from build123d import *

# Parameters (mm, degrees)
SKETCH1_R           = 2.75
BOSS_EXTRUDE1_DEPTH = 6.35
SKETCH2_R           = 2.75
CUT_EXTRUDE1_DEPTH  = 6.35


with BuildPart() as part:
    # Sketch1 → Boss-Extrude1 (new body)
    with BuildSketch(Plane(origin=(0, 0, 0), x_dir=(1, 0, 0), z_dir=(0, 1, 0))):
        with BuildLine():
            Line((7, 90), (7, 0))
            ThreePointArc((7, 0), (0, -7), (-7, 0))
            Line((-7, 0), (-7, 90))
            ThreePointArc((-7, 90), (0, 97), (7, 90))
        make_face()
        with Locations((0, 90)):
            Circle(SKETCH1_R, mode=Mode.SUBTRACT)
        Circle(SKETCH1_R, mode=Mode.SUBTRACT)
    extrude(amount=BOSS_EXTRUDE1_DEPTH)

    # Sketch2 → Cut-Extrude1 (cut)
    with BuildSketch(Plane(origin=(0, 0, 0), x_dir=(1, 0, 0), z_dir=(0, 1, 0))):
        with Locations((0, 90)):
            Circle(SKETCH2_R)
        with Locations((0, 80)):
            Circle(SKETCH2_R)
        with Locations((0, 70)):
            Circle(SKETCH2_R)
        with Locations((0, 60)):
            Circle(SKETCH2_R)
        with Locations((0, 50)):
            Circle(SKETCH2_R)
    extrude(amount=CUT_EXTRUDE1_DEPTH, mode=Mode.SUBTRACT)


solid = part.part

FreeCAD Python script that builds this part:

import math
import FreeCAD as App
import Part
import Sketcher
from FreeCAD import Vector
Q = App.Units.Quantity

doc = App.newDocument("Part")
body = doc.addObject("PartDesign::Body", "Body")

sketch1 = doc.addObject("Sketcher::SketchObject", "Sketch")
body.addObject(sketch1)
sketch1.AttachmentSupport = (doc.XZ_Plane, [""])
sketch1.MapMode = "FlatFace"
sketch1.addGeometry([
    Part.LineSegment(Vector(7, 0, 0), Vector(7, -90, 0)),
    Part.ArcOfCircle(Part.Circle(Vector(0, -90, 0), Vector(0, 0, 1), 7), math.radians(180), math.radians(360)),
    Part.LineSegment(Vector(-7, -90, 0), Vector(-7, 0, 0)),
    Part.ArcOfCircle(Part.Circle(Vector(0, 0, 0), Vector(0, 0, 1), 7), math.radians(0), math.radians(180)),
    Part.Circle(Vector(0, 0, 0), Vector(0, 0, 1), 2.8),
    Part.Circle(Vector(0, -90, 0), Vector(0, 0, 1), 2.8),
], False)
sketch1.addConstraint([
    Sketcher.Constraint("Tangent", 0, 2, 1, 2),
    Sketcher.Constraint("Tangent", 1, 1, 2, 1),
    Sketcher.Constraint("Tangent", 2, 2, 3, 2),
    Sketcher.Constraint("Tangent", 3, 1, 0, 1),
    Sketcher.Constraint("Vertical", 0),
    Sketcher.Constraint("Vertical", 2),
    Sketcher.Constraint("Coincident", 3, 3, -1, 1),
    Sketcher.Constraint("Coincident", 4, 3, -1, 1),
    Sketcher.Constraint("Coincident", 5, 3, 1, 3),
    Sketcher.Constraint("Equal", 4, 5),
    Sketcher.Constraint("Radius", 1, Q("7 mm")),
    Sketcher.Constraint("Diameter", 4, Q("5.5 mm")),
    Sketcher.Constraint("DistanceY", 0, 2, 0, 1, Q("90 mm")),
])
pad1 = doc.addObject("PartDesign::Pad", "Pad")
body.addObject(pad1)
pad1.Profile = sketch1
pad1.Length = 6.35
pad1.Reversed = True

sketch2 = doc.addObject("Sketcher::SketchObject", "Sketch001")
body.addObject(sketch2)
sketch2.AttachmentSupport = (doc.XZ_Plane, [""])
sketch2.MapMode = "FlatFace"
sketch2.addGeometry([
    Part.Circle(Vector(0, -90, 0), Vector(0, 0, 1), 2.8),
    Part.Circle(Vector(0, -80, 0), Vector(0, 0, 1), 2.8),
    Part.Circle(Vector(0, -70, 0), Vector(0, 0, 1), 2.8),
    Part.Circle(Vector(0, -60, 0), Vector(0, 0, 1), 2.8),
    Part.Circle(Vector(0, -50, 0), Vector(0, 0, 1), 2.8),
], False)
sketch2.addConstraint([
    Sketcher.Constraint("Equal", 0, 1),
    Sketcher.Constraint("Equal", 1, 2),
    Sketcher.Constraint("Equal", 2, 3),
    Sketcher.Constraint("Equal", 3, 4),
    Sketcher.Constraint("PointOnObject", 0, 3, -2),
    Sketcher.Constraint("PointOnObject", 1, 3, -2),
    Sketcher.Constraint("PointOnObject", 2, 3, -2),
    Sketcher.Constraint("PointOnObject", 3, 3, -2),
    Sketcher.Constraint("PointOnObject", 4, 3, -2),
    Sketcher.Constraint("Diameter", 0, Q("5.5 mm")),
    Sketcher.Constraint("DistanceY", 0, 3, -1, 1, Q("90 mm")),
    Sketcher.Constraint("DistanceY", 1, 3, -1, 1, Q("80 mm")),
    Sketcher.Constraint("DistanceY", 2, 3, -1, 1, Q("70 mm")),
    Sketcher.Constraint("DistanceY", 3, 3, -1, 1, Q("60 mm")),
    Sketcher.Constraint("DistanceY", 4, 3, -1, 1, Q("50 mm")),
])
pocket1 = doc.addObject("PartDesign::Pocket", "Pocket")
body.addObject(pocket1)
pocket1.Profile = sketch2
pocket1.Length = 6.35

doc.recompute()
